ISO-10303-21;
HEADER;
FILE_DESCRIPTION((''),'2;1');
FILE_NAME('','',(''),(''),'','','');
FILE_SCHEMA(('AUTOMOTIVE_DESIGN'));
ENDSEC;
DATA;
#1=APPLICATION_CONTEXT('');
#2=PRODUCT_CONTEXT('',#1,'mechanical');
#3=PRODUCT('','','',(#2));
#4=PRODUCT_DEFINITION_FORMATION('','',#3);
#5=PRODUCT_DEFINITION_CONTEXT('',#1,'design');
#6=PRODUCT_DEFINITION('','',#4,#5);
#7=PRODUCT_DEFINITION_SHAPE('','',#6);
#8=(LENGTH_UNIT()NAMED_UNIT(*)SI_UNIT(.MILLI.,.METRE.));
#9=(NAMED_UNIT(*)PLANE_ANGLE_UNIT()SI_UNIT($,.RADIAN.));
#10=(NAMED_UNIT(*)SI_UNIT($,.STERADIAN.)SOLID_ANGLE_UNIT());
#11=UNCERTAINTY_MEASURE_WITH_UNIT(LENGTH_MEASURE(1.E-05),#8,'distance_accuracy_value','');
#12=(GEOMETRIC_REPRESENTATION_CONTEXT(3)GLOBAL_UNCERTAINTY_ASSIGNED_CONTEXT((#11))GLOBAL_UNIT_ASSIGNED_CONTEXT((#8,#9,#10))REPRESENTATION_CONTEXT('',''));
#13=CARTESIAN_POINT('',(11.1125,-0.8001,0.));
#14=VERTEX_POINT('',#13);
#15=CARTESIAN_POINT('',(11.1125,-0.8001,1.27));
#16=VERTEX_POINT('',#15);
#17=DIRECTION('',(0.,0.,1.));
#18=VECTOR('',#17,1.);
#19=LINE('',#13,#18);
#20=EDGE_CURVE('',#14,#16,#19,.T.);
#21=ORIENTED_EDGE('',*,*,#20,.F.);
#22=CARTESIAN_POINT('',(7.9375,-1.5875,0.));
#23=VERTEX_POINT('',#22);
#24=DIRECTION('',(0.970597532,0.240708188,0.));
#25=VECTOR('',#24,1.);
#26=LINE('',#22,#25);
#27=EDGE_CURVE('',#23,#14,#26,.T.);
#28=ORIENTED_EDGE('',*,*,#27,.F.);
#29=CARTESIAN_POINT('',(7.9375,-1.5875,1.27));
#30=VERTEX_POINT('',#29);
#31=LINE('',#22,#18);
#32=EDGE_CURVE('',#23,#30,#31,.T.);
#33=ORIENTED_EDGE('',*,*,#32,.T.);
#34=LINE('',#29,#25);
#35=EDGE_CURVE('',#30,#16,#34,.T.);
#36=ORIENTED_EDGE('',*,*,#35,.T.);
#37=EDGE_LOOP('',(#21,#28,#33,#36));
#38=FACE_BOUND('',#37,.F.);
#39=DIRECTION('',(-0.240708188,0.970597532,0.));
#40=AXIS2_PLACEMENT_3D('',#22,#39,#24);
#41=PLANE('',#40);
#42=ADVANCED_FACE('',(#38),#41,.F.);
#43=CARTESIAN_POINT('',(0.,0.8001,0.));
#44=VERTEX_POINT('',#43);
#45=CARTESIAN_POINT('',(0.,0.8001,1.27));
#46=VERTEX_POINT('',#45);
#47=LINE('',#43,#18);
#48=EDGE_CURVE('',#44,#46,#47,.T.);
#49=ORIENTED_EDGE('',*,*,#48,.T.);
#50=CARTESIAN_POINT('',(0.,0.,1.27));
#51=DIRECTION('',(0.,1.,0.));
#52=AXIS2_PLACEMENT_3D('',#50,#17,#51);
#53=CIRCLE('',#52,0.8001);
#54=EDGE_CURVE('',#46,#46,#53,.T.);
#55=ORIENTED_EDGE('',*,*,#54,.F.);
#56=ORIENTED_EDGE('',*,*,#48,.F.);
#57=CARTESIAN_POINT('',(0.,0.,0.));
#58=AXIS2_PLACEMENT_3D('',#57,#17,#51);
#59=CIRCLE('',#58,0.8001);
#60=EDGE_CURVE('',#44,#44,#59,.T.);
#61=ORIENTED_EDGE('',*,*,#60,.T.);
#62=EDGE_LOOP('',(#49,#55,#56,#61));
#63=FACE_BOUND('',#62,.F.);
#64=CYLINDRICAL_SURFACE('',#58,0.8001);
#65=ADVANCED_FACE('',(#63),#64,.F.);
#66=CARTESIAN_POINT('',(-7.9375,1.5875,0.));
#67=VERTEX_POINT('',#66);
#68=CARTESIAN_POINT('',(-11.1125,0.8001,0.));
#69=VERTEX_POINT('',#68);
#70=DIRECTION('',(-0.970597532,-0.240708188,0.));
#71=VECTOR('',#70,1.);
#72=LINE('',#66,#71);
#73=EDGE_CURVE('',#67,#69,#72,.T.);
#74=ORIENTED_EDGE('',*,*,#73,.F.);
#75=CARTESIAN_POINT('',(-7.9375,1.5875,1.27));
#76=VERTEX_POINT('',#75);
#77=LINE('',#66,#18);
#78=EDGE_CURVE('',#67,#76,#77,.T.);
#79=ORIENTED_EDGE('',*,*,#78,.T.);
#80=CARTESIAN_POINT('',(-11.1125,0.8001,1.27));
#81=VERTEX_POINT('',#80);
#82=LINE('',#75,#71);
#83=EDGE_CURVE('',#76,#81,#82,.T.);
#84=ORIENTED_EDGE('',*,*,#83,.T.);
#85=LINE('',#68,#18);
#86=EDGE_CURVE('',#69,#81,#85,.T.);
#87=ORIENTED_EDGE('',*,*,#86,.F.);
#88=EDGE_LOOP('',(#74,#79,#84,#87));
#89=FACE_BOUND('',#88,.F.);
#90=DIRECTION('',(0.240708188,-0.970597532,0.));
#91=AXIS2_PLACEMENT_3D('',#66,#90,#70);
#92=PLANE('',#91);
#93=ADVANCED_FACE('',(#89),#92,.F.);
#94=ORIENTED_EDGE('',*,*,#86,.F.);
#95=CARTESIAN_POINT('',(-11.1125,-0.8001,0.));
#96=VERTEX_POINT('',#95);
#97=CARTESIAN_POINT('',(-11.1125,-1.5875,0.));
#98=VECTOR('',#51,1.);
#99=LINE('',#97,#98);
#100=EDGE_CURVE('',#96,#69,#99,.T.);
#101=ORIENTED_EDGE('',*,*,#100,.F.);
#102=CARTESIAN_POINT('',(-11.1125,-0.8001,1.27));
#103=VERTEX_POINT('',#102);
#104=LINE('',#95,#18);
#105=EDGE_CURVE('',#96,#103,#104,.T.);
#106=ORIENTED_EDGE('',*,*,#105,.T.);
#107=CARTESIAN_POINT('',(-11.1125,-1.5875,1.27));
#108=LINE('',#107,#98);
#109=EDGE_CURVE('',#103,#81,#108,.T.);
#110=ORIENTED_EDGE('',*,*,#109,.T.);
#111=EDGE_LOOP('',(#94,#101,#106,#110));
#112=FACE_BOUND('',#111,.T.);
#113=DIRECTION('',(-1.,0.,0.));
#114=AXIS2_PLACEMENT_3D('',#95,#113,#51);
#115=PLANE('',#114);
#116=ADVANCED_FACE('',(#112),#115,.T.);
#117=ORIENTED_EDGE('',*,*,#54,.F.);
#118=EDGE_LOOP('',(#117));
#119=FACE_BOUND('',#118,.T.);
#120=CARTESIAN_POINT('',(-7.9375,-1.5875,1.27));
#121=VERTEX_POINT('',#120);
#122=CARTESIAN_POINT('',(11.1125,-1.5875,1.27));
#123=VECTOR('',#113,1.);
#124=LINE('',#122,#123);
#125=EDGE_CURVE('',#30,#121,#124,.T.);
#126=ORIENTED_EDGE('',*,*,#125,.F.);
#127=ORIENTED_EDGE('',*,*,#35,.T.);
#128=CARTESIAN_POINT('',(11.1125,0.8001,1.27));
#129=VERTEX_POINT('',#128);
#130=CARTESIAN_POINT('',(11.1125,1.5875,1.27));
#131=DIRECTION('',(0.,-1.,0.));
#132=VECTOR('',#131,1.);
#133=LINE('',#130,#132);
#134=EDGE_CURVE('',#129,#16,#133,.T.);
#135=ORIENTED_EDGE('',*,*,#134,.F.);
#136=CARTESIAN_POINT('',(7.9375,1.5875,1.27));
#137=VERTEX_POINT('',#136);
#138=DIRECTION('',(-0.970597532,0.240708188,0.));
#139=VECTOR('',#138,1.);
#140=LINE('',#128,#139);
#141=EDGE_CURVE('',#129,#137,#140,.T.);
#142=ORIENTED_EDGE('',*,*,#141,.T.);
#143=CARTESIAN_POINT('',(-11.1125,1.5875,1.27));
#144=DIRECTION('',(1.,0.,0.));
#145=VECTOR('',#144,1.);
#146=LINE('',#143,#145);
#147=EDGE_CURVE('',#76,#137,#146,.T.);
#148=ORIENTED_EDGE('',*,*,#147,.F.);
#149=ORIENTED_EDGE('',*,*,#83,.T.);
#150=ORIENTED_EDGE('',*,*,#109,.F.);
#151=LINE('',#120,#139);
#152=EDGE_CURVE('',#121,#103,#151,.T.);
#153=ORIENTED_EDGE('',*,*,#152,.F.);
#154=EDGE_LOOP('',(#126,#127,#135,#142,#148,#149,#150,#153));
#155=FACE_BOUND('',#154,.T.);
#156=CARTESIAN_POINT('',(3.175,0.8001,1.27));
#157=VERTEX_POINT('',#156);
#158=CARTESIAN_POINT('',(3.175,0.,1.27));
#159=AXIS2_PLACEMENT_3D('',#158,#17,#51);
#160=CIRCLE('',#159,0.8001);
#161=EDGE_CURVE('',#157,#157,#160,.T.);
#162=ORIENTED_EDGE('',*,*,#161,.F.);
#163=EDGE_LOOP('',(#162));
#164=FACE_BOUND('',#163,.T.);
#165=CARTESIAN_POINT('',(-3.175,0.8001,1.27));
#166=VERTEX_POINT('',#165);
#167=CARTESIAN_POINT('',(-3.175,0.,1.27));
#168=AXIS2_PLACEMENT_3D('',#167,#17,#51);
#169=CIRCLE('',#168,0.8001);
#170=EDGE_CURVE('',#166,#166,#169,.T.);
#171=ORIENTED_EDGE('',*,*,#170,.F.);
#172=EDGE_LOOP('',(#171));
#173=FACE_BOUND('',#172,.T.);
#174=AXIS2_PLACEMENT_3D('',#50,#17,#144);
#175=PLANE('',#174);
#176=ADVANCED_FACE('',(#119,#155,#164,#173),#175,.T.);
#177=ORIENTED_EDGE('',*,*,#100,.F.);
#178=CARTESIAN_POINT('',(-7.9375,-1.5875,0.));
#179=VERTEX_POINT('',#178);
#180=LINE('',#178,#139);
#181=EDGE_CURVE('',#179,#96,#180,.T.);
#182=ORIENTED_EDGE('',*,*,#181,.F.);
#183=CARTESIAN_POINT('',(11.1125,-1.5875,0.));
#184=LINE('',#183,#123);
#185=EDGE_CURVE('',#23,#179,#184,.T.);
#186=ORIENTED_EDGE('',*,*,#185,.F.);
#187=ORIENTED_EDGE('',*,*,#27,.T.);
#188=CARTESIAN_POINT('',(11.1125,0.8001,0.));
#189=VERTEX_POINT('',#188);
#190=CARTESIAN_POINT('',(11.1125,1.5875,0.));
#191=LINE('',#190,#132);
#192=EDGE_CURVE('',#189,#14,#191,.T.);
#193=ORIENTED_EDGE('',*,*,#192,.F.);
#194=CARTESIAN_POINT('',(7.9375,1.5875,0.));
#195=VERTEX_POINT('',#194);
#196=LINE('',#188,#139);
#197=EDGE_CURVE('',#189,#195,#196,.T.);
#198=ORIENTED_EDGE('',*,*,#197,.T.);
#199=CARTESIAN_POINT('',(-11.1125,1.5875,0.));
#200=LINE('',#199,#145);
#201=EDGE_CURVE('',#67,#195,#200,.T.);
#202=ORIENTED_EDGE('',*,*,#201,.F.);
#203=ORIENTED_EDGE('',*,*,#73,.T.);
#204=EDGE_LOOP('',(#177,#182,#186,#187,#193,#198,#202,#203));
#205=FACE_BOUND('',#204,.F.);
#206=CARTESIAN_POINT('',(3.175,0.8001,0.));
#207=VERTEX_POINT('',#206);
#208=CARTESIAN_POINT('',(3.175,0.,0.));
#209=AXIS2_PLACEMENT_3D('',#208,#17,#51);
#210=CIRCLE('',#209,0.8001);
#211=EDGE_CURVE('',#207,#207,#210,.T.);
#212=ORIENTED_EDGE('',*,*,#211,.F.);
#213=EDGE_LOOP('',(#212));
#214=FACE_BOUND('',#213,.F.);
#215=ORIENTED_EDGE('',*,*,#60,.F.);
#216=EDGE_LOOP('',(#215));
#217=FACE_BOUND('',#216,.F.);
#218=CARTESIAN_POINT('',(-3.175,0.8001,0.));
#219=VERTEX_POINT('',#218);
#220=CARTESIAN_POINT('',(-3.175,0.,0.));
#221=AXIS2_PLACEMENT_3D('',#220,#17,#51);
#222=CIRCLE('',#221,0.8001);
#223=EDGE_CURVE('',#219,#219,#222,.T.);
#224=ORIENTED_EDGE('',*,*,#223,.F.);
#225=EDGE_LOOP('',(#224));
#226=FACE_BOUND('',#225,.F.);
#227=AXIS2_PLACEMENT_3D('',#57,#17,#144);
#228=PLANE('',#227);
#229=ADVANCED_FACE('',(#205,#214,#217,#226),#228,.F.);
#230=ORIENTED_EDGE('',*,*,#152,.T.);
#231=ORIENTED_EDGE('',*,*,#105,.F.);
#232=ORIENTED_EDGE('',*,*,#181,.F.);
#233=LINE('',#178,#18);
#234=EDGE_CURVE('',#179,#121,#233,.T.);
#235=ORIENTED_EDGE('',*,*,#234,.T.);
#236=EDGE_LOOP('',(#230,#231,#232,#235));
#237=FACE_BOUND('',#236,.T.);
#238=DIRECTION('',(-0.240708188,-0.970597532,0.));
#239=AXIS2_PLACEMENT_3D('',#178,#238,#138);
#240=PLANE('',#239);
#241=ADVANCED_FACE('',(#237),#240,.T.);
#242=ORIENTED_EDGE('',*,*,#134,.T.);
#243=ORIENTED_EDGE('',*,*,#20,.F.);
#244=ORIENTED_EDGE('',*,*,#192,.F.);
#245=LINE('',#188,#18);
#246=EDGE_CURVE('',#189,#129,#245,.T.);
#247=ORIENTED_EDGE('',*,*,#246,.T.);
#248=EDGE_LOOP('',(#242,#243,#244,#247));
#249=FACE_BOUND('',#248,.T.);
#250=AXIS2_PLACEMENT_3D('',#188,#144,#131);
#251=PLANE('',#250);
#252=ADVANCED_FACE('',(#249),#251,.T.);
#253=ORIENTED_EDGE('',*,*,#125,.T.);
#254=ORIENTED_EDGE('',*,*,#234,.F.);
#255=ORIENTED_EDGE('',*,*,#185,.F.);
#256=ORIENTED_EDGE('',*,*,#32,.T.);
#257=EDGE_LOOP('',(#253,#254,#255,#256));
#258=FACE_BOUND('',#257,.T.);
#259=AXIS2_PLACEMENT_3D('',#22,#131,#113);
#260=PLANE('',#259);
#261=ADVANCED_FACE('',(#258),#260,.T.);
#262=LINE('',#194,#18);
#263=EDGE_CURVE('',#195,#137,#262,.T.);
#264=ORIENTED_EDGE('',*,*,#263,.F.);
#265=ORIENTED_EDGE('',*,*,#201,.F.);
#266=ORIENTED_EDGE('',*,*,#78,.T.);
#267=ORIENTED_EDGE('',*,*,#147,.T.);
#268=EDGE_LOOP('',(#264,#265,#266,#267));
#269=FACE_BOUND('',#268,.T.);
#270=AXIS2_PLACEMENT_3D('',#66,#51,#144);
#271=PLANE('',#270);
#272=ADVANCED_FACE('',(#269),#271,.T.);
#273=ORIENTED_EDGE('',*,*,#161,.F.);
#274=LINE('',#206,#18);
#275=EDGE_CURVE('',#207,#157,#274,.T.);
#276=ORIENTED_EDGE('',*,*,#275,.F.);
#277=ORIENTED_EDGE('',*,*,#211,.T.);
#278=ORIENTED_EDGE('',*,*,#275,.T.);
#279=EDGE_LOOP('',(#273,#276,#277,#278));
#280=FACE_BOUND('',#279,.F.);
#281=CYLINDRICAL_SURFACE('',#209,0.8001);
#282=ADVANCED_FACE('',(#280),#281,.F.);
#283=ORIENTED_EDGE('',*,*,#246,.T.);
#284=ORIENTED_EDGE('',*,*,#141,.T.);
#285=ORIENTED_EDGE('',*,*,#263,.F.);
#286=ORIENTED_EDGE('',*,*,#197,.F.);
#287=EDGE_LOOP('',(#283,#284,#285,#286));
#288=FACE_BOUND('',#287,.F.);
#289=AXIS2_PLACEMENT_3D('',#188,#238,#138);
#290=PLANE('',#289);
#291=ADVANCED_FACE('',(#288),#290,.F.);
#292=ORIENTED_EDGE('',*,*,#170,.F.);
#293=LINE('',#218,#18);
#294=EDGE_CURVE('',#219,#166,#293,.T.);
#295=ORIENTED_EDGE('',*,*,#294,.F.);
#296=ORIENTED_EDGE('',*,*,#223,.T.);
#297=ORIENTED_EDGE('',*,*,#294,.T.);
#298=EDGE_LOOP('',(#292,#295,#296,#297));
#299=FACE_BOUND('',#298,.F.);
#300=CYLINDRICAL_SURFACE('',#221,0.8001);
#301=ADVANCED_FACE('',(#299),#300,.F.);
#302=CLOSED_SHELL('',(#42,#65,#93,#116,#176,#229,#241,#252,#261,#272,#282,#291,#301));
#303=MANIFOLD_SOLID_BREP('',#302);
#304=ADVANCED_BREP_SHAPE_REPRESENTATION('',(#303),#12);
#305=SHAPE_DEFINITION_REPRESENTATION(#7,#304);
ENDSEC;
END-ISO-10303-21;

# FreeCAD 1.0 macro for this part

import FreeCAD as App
import Part
import Sketcher

V = App.Vector
Q = App.Units.Quantity


def add_polygon(sketch, points):
    """Adds a closed chain of lines whose ends are joined by coincident constraints."""
    first, n = sketch.GeometryCount, len(points)
    for a, b in zip(points, points[1:] + points[:1]):
        sketch.addGeometry(Part.LineSegment(App.Vector(*a, 0), App.Vector(*b, 0)), False)
    for i in range(n):
        sketch.addConstraint(Sketcher.Constraint("Coincident", first + i, 2, first + (i + 1) % n, 1))

doc = App.newDocument("Part")
body = doc.addObject("PartDesign::Body", "Body")

sketch1 = body.newObject("Sketcher::SketchObject", "Sketch")
sketch1.AttachmentSupport = (doc.getObject("XY_Plane"), [""])
sketch1.MapMode = "FlatFace"
add_polygon(sketch1, [(7.9375, 1.5875), (-7.9375, 1.5875), (-11.1125, 0.8001), (-11.1125, -0.8001), (-7.9375, -1.5875), (7.9375, -1.5875), (11.1125, -0.8001), (11.1125, 0.8001)])
sketch1.addConstraint([
    Sketcher.Constraint("Horizontal", 0),
    Sketcher.Constraint("Vertical", 2),
    Sketcher.Constraint("Horizontal", 4),
    Sketcher.Constraint("Vertical", 6),
    Sketcher.Constraint("Symmetric", 0, 2, 4, 2, -1, 1),
    Sketcher.Constraint("Symmetric", 1, 2, 5, 2, -1, 1),
    Sketcher.Constraint("Parallel", 3, 7),
    Sketcher.Constraint("Horizontal", 2, 2, 5, 2),
    Sketcher.Constraint("Horizontal", 1, 2, 6, 2),
    Sketcher.Constraint("Vertical", 0, 2, 3, 2),
    Sketcher.Constraint("DistanceY", 2, 2, 2, 1, Q("0.063 in")),
    Sketcher.Constraint("DistanceY", -1, 1, 0, 2, Q("0.0625 in")),
    Sketcher.Constraint("DistanceX", 1, 2, -1, 1, Q("0.4375 in")),
    Sketcher.Constraint("DistanceX", 1, 2, 0, 2, Q("0.125 in")),
])
pad1 = body.newObject("PartDesign::Pad", "Pad")
pad1.Profile = sketch1
pad1.Length = Q("0.05 in")

sketch2 = body.newObject("Sketcher::SketchObject", "Sketch001")
sketch2.AttachmentSupport = (doc.getObject("XY_Plane"), [""])
sketch2.MapMode = "FlatFace"
sketch2.addGeometry([
    Part.Circle(V(-3.175, 0, 0), V(0, 0, 1), 0.8001),
    Part.Circle(V(0, 0, 0), V(0, 0, 1), 0.8001),
    Part.Circle(V(3.175, 0, 0), V(0, 0, 1), 0.8001),
], False)
sketch2.addConstraint([
    Sketcher.Constraint("Coincident", 1, 3, -1, 1),
    Sketcher.Constraint("Equal", 0, 1),
    Sketcher.Constraint("Equal", 1, 2),
    Sketcher.Constraint("Symmetric", 0, 3, 2, 3, -1, 1),
    Sketcher.Constraint("PointOnObject", 0, 3, -1),
    Sketcher.Constraint("Diameter", 0, Q("0.063 in")),
    Sketcher.Constraint("DistanceX", 0, 3, 2, 3, Q("0.25 in")),
])
doc.recompute()
hole = body.newObject("PartDesign::Hole", "Hole")
hole.Profile = sketch2
hole.ThreadType = "None"
hole.Diameter = Q("0.063 in")
hole.DepthType = "ThroughAll"
hole.Reversed = True

doc.recompute()
